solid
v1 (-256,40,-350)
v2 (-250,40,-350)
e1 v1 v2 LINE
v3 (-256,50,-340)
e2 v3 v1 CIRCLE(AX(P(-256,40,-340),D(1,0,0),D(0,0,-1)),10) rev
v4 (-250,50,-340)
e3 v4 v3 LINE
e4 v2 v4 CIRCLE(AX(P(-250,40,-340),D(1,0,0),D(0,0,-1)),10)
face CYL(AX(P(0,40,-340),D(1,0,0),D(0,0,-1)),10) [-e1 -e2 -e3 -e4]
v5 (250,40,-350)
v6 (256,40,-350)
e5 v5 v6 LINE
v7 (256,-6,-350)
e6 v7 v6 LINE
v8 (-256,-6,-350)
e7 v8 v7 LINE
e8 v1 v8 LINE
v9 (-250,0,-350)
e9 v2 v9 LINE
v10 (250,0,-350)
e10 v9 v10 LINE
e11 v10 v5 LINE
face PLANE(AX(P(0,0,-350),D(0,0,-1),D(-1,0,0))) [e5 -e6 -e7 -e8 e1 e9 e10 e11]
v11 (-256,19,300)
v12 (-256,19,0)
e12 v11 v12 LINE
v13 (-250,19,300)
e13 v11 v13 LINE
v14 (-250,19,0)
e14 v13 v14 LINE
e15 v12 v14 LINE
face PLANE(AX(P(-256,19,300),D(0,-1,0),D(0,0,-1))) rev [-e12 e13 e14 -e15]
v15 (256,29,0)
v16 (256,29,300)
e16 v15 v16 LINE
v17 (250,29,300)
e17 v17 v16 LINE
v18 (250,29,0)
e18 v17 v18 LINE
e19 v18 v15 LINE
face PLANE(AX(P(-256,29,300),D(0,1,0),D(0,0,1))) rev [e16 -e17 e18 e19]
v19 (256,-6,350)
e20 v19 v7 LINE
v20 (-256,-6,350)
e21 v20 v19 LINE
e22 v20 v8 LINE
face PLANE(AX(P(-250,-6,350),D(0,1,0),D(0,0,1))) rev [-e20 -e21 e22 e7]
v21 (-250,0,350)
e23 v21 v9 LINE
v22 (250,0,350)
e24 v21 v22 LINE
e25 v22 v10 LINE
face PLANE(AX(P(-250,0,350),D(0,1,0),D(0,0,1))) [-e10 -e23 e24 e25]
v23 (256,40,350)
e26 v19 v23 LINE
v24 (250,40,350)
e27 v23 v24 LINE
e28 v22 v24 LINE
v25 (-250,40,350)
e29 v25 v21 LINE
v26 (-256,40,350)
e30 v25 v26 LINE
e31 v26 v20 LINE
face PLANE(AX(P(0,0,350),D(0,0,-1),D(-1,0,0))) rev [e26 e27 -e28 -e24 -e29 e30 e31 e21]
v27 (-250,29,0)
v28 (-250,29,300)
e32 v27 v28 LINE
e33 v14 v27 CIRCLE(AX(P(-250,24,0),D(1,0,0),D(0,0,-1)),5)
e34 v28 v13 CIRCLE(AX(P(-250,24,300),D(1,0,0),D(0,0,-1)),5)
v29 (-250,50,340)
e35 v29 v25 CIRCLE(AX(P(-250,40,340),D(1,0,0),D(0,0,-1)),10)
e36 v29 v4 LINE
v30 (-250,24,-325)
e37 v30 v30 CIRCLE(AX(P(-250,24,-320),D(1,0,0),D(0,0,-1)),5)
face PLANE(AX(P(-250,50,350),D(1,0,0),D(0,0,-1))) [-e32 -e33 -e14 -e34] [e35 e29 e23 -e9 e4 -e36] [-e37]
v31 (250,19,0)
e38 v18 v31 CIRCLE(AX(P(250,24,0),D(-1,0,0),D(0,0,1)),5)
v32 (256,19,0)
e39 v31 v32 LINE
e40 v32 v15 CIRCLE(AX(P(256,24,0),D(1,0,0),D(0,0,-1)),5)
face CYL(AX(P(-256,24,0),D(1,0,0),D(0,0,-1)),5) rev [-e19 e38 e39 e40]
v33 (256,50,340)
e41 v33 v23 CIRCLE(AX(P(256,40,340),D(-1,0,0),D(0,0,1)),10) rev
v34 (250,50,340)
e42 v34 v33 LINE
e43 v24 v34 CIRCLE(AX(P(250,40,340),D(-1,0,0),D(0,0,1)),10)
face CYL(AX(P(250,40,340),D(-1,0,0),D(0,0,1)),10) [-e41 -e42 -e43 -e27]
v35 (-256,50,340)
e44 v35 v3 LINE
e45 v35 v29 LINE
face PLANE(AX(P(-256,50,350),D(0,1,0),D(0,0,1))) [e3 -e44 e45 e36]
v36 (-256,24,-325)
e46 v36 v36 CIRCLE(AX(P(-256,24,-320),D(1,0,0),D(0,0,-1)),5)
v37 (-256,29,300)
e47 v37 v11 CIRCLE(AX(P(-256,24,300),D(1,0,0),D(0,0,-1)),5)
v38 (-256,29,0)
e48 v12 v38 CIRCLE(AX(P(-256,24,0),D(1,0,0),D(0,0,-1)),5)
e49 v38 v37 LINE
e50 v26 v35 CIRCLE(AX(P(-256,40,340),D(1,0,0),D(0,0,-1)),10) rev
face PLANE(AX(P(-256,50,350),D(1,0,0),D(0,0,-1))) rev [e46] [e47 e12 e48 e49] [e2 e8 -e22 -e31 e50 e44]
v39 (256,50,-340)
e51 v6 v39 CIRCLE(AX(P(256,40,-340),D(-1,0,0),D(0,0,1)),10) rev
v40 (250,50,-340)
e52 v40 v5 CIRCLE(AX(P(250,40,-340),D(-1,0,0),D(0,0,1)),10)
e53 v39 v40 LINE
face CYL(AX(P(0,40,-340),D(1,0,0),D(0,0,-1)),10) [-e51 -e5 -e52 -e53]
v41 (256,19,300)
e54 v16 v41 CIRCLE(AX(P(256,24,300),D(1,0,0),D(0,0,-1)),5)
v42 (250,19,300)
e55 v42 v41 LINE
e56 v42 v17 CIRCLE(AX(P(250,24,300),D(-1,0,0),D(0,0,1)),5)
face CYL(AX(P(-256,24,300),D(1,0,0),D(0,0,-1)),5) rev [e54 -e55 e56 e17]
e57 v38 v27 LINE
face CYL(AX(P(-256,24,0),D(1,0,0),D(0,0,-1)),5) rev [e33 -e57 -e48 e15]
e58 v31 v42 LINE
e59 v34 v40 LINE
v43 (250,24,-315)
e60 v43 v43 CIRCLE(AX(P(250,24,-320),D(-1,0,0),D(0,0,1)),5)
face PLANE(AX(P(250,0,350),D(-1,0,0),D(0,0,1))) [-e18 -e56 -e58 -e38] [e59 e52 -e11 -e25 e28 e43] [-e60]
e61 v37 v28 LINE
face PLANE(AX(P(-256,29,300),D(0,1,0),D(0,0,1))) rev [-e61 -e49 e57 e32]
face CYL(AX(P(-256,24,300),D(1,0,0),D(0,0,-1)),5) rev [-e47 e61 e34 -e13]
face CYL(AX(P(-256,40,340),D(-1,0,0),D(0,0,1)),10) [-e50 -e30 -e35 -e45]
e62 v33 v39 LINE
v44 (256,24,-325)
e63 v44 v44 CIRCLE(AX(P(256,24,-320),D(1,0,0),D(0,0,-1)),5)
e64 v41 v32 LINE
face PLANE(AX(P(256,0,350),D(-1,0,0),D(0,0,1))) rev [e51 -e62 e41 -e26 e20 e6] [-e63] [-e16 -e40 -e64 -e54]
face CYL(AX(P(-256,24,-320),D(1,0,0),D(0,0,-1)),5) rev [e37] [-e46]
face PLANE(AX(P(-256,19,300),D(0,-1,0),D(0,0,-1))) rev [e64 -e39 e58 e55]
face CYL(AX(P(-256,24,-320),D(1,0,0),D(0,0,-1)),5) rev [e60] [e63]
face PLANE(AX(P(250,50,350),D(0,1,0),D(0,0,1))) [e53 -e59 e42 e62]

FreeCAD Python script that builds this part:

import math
import FreeCAD as App
import Part
import Sketcher

V = App.Vector


def edges_at(feature, points):
    """Names of the edges that pass closest to the given points."""
    edges = feature.Shape.Edges
    near = lambda p: min(range(len(edges)), key=lambda i: edges[i].distToShape(Part.Vertex(*p))[0])
    return sorted({f"Edge{near(p) + 1}" for p in points})

doc = App.newDocument("Part")
params = doc.addObject("Spreadsheet::Sheet", "Params")
for row, (alias, value) in enumerate([
    ("sketch1_width", "6 mm"),
    ("sketch1_width2", "512 mm"),
    ("sketch1_height", "50 mm"),
    ("sketch1_height2", "56 mm"),
    ("pad1_length", "700 mm"),
    ("sketch2_diameter", "10 mm"),
    ("sketch2_height", "300 mm"),
    ("fillet_radius", "10 mm"),
], start=1):
    params.set(f"A{row}", alias)
    params.set(f"B{row}", "=" + value)
    params.setAlias(f"B{row}", alias)

body = doc.addObject("PartDesign::Body", "Body")

# Sketch on XY plane
sketch1 = body.newObject("Sketcher::SketchObject", "Sketch")
sketch1.AttachmentSupport = (doc.getObject("XY_Plane"), [""])
sketch1.MapMode = "FlatFace"
sketch1.addGeometry([
    Part.LineSegment(V(-250, 0, 0), V(-250, 50, 0)),  # 0
    Part.LineSegment(V(-250, 50, 0), V(-256, 50, 0)),  # 1
    Part.LineSegment(V(-256, 50, 0), V(-256, -6, 0)),  # 2
    Part.LineSegment(V(-256, -6, 0), V(256, -6, 0)),  # 3
    Part.LineSegment(V(256, -6, 0), V(256, 50, 0)),  # 4
    Part.LineSegment(V(256, 50, 0), V(250, 50, 0)),  # 5
    Part.LineSegment(V(250, 50, 0), V(250, 0, 0)),  # 6
    Part.LineSegment(V(250, 0, 0), V(-250, 0, 0)),  # 7
], False)
sketch1.addConstraint([
    Sketcher.Constraint("Coincident", 0, 2, 1, 1),
    Sketcher.Constraint("Coincident", 1, 2, 2, 1),
    Sketcher.Constraint("Coincident", 2, 2, 3, 1),
    Sketcher.Constraint("Coincident", 3, 2, 4, 1),
    Sketcher.Constraint("Coincident", 4, 2, 5, 1),
    Sketcher.Constraint("Coincident", 5, 2, 6, 1),
    Sketcher.Constraint("Coincident", 6, 2, 7, 1),
    Sketcher.Constraint("Coincident", 7, 2, 0, 1),
    Sketcher.Constraint("Vertical", 0),
    Sketcher.Constraint("Horizontal", 1),
    Sketcher.Constraint("Vertical", 2),
    Sketcher.Constraint("Horizontal", 3),
    Sketcher.Constraint("Vertical", 4),
    Sketcher.Constraint("Horizontal", 5),
    Sketcher.Constraint("Vertical", 6),
    Sketcher.Constraint("Horizontal", 7),
    Sketcher.Constraint("Symmetric", 6, 2, 7, 2, -1, 1),
    Sketcher.Constraint("Symmetric", 1, 2, 4, 2, -2),
    Sketcher.Constraint("DistanceX", 1, 2, 1, 1, 6.0),
    Sketcher.Constraint("DistanceX", 3, 1, 3, 2, 512.0),
    Sketcher.Constraint("DistanceY", 0, 1, 0, 2, 50.0),
    Sketcher.Constraint("DistanceY", 2, 2, 2, 1, 56.0),
])
sketch1.setExpression("Constraints[18]", "Params.sketch1_width")
sketch1.setExpression("Constraints[19]", "Params.sketch1_width2")
sketch1.setExpression("Constraints[20]", "Params.sketch1_height")
sketch1.setExpression("Constraints[21]", "Params.sketch1_height2")
pad1 = body.newObject("PartDesign::Pad", "Pad")
pad1.Profile = sketch1
pad1.setExpression("Length", "Params.pad1_length")
pad1.Midplane = True

# Sketch on YZ plane
sketch2 = body.newObject("Sketcher::SketchObject", "Sketch001")
sketch2.AttachmentSupport = (doc.getObject("YZ_Plane"), [""])
sketch2.MapMode = "FlatFace"
sketch2.AttachmentOffset = App.Placement(V(0, 0, 256), App.Rotation())
sketch2.addGeometry([
    Part.Circle(V(24, -320, 0), V(0, 0, 1), 5),  # 0
    Part.LineSegment(V(29, 0, 0), V(29, 300, 0)),  # 1
    Part.ArcOfCircle(Part.Circle(V(24, 300, 0), V(0, 0, 1), 5), math.radians(0), math.radians(180)),  # 2
    Part.LineSegment(V(19, 300, 0), V(19, 0, 0)),  # 3
    Part.ArcOfCircle(Part.Circle(V(24, 0, 0), V(0, 0, 1), 5), math.radians(180), math.radians(360)),  # 4
], False)
sketch2.addConstraint([
    Sketcher.Constraint("Tangent", 1, 2, 2, 1),
    Sketcher.Constraint("Tangent", 2, 2, 3, 1),
    Sketcher.Constraint("Tangent", 3, 2, 4, 1),
    Sketcher.Constraint("Tangent", 4, 2, 1, 1),
    Sketcher.Constraint("Vertical", 1),
    Sketcher.Constraint("Vertical", 3),
    Sketcher.Constraint("Equal", 0, 2),
    Sketcher.Constraint("PointOnObject", 4, 3, -1),
    Sketcher.Constraint("Vertical", 0, 3, 2, 3),
    Sketcher.Constraint("Diameter", 0, 10.0),
    Sketcher.Constraint("DistanceY", 1, 1, 1, 2, 300.0),
    Sketcher.Constraint("DistanceX", -1, 1, 0, 3, 24.0),
    Sketcher.Constraint("DistanceY", 0, 3, -1, 1, 320.0),
])
sketch2.setExpression("Constraints[9]", "Params.sketch2_diameter")
sketch2.setExpression("Constraints[10]", "Params.sketch2_height")
pocket1 = body.newObject("PartDesign::Pocket", "Pocket")
pocket1.Profile = sketch2
pocket1.Type = "ThroughAll"
doc.recompute()

fillet = body.newObject("PartDesign::Fillet", "Fillet")
fillet.Base = (pocket1, edges_at(pocket1, [
    (-253, 50, 350),
    (253, 50, 350),
    (-253, 50, -350),
    (253, 50, -350),
]))
fillet.setExpression("Radius", "Params.fillet_radius")

doc.recompute()
